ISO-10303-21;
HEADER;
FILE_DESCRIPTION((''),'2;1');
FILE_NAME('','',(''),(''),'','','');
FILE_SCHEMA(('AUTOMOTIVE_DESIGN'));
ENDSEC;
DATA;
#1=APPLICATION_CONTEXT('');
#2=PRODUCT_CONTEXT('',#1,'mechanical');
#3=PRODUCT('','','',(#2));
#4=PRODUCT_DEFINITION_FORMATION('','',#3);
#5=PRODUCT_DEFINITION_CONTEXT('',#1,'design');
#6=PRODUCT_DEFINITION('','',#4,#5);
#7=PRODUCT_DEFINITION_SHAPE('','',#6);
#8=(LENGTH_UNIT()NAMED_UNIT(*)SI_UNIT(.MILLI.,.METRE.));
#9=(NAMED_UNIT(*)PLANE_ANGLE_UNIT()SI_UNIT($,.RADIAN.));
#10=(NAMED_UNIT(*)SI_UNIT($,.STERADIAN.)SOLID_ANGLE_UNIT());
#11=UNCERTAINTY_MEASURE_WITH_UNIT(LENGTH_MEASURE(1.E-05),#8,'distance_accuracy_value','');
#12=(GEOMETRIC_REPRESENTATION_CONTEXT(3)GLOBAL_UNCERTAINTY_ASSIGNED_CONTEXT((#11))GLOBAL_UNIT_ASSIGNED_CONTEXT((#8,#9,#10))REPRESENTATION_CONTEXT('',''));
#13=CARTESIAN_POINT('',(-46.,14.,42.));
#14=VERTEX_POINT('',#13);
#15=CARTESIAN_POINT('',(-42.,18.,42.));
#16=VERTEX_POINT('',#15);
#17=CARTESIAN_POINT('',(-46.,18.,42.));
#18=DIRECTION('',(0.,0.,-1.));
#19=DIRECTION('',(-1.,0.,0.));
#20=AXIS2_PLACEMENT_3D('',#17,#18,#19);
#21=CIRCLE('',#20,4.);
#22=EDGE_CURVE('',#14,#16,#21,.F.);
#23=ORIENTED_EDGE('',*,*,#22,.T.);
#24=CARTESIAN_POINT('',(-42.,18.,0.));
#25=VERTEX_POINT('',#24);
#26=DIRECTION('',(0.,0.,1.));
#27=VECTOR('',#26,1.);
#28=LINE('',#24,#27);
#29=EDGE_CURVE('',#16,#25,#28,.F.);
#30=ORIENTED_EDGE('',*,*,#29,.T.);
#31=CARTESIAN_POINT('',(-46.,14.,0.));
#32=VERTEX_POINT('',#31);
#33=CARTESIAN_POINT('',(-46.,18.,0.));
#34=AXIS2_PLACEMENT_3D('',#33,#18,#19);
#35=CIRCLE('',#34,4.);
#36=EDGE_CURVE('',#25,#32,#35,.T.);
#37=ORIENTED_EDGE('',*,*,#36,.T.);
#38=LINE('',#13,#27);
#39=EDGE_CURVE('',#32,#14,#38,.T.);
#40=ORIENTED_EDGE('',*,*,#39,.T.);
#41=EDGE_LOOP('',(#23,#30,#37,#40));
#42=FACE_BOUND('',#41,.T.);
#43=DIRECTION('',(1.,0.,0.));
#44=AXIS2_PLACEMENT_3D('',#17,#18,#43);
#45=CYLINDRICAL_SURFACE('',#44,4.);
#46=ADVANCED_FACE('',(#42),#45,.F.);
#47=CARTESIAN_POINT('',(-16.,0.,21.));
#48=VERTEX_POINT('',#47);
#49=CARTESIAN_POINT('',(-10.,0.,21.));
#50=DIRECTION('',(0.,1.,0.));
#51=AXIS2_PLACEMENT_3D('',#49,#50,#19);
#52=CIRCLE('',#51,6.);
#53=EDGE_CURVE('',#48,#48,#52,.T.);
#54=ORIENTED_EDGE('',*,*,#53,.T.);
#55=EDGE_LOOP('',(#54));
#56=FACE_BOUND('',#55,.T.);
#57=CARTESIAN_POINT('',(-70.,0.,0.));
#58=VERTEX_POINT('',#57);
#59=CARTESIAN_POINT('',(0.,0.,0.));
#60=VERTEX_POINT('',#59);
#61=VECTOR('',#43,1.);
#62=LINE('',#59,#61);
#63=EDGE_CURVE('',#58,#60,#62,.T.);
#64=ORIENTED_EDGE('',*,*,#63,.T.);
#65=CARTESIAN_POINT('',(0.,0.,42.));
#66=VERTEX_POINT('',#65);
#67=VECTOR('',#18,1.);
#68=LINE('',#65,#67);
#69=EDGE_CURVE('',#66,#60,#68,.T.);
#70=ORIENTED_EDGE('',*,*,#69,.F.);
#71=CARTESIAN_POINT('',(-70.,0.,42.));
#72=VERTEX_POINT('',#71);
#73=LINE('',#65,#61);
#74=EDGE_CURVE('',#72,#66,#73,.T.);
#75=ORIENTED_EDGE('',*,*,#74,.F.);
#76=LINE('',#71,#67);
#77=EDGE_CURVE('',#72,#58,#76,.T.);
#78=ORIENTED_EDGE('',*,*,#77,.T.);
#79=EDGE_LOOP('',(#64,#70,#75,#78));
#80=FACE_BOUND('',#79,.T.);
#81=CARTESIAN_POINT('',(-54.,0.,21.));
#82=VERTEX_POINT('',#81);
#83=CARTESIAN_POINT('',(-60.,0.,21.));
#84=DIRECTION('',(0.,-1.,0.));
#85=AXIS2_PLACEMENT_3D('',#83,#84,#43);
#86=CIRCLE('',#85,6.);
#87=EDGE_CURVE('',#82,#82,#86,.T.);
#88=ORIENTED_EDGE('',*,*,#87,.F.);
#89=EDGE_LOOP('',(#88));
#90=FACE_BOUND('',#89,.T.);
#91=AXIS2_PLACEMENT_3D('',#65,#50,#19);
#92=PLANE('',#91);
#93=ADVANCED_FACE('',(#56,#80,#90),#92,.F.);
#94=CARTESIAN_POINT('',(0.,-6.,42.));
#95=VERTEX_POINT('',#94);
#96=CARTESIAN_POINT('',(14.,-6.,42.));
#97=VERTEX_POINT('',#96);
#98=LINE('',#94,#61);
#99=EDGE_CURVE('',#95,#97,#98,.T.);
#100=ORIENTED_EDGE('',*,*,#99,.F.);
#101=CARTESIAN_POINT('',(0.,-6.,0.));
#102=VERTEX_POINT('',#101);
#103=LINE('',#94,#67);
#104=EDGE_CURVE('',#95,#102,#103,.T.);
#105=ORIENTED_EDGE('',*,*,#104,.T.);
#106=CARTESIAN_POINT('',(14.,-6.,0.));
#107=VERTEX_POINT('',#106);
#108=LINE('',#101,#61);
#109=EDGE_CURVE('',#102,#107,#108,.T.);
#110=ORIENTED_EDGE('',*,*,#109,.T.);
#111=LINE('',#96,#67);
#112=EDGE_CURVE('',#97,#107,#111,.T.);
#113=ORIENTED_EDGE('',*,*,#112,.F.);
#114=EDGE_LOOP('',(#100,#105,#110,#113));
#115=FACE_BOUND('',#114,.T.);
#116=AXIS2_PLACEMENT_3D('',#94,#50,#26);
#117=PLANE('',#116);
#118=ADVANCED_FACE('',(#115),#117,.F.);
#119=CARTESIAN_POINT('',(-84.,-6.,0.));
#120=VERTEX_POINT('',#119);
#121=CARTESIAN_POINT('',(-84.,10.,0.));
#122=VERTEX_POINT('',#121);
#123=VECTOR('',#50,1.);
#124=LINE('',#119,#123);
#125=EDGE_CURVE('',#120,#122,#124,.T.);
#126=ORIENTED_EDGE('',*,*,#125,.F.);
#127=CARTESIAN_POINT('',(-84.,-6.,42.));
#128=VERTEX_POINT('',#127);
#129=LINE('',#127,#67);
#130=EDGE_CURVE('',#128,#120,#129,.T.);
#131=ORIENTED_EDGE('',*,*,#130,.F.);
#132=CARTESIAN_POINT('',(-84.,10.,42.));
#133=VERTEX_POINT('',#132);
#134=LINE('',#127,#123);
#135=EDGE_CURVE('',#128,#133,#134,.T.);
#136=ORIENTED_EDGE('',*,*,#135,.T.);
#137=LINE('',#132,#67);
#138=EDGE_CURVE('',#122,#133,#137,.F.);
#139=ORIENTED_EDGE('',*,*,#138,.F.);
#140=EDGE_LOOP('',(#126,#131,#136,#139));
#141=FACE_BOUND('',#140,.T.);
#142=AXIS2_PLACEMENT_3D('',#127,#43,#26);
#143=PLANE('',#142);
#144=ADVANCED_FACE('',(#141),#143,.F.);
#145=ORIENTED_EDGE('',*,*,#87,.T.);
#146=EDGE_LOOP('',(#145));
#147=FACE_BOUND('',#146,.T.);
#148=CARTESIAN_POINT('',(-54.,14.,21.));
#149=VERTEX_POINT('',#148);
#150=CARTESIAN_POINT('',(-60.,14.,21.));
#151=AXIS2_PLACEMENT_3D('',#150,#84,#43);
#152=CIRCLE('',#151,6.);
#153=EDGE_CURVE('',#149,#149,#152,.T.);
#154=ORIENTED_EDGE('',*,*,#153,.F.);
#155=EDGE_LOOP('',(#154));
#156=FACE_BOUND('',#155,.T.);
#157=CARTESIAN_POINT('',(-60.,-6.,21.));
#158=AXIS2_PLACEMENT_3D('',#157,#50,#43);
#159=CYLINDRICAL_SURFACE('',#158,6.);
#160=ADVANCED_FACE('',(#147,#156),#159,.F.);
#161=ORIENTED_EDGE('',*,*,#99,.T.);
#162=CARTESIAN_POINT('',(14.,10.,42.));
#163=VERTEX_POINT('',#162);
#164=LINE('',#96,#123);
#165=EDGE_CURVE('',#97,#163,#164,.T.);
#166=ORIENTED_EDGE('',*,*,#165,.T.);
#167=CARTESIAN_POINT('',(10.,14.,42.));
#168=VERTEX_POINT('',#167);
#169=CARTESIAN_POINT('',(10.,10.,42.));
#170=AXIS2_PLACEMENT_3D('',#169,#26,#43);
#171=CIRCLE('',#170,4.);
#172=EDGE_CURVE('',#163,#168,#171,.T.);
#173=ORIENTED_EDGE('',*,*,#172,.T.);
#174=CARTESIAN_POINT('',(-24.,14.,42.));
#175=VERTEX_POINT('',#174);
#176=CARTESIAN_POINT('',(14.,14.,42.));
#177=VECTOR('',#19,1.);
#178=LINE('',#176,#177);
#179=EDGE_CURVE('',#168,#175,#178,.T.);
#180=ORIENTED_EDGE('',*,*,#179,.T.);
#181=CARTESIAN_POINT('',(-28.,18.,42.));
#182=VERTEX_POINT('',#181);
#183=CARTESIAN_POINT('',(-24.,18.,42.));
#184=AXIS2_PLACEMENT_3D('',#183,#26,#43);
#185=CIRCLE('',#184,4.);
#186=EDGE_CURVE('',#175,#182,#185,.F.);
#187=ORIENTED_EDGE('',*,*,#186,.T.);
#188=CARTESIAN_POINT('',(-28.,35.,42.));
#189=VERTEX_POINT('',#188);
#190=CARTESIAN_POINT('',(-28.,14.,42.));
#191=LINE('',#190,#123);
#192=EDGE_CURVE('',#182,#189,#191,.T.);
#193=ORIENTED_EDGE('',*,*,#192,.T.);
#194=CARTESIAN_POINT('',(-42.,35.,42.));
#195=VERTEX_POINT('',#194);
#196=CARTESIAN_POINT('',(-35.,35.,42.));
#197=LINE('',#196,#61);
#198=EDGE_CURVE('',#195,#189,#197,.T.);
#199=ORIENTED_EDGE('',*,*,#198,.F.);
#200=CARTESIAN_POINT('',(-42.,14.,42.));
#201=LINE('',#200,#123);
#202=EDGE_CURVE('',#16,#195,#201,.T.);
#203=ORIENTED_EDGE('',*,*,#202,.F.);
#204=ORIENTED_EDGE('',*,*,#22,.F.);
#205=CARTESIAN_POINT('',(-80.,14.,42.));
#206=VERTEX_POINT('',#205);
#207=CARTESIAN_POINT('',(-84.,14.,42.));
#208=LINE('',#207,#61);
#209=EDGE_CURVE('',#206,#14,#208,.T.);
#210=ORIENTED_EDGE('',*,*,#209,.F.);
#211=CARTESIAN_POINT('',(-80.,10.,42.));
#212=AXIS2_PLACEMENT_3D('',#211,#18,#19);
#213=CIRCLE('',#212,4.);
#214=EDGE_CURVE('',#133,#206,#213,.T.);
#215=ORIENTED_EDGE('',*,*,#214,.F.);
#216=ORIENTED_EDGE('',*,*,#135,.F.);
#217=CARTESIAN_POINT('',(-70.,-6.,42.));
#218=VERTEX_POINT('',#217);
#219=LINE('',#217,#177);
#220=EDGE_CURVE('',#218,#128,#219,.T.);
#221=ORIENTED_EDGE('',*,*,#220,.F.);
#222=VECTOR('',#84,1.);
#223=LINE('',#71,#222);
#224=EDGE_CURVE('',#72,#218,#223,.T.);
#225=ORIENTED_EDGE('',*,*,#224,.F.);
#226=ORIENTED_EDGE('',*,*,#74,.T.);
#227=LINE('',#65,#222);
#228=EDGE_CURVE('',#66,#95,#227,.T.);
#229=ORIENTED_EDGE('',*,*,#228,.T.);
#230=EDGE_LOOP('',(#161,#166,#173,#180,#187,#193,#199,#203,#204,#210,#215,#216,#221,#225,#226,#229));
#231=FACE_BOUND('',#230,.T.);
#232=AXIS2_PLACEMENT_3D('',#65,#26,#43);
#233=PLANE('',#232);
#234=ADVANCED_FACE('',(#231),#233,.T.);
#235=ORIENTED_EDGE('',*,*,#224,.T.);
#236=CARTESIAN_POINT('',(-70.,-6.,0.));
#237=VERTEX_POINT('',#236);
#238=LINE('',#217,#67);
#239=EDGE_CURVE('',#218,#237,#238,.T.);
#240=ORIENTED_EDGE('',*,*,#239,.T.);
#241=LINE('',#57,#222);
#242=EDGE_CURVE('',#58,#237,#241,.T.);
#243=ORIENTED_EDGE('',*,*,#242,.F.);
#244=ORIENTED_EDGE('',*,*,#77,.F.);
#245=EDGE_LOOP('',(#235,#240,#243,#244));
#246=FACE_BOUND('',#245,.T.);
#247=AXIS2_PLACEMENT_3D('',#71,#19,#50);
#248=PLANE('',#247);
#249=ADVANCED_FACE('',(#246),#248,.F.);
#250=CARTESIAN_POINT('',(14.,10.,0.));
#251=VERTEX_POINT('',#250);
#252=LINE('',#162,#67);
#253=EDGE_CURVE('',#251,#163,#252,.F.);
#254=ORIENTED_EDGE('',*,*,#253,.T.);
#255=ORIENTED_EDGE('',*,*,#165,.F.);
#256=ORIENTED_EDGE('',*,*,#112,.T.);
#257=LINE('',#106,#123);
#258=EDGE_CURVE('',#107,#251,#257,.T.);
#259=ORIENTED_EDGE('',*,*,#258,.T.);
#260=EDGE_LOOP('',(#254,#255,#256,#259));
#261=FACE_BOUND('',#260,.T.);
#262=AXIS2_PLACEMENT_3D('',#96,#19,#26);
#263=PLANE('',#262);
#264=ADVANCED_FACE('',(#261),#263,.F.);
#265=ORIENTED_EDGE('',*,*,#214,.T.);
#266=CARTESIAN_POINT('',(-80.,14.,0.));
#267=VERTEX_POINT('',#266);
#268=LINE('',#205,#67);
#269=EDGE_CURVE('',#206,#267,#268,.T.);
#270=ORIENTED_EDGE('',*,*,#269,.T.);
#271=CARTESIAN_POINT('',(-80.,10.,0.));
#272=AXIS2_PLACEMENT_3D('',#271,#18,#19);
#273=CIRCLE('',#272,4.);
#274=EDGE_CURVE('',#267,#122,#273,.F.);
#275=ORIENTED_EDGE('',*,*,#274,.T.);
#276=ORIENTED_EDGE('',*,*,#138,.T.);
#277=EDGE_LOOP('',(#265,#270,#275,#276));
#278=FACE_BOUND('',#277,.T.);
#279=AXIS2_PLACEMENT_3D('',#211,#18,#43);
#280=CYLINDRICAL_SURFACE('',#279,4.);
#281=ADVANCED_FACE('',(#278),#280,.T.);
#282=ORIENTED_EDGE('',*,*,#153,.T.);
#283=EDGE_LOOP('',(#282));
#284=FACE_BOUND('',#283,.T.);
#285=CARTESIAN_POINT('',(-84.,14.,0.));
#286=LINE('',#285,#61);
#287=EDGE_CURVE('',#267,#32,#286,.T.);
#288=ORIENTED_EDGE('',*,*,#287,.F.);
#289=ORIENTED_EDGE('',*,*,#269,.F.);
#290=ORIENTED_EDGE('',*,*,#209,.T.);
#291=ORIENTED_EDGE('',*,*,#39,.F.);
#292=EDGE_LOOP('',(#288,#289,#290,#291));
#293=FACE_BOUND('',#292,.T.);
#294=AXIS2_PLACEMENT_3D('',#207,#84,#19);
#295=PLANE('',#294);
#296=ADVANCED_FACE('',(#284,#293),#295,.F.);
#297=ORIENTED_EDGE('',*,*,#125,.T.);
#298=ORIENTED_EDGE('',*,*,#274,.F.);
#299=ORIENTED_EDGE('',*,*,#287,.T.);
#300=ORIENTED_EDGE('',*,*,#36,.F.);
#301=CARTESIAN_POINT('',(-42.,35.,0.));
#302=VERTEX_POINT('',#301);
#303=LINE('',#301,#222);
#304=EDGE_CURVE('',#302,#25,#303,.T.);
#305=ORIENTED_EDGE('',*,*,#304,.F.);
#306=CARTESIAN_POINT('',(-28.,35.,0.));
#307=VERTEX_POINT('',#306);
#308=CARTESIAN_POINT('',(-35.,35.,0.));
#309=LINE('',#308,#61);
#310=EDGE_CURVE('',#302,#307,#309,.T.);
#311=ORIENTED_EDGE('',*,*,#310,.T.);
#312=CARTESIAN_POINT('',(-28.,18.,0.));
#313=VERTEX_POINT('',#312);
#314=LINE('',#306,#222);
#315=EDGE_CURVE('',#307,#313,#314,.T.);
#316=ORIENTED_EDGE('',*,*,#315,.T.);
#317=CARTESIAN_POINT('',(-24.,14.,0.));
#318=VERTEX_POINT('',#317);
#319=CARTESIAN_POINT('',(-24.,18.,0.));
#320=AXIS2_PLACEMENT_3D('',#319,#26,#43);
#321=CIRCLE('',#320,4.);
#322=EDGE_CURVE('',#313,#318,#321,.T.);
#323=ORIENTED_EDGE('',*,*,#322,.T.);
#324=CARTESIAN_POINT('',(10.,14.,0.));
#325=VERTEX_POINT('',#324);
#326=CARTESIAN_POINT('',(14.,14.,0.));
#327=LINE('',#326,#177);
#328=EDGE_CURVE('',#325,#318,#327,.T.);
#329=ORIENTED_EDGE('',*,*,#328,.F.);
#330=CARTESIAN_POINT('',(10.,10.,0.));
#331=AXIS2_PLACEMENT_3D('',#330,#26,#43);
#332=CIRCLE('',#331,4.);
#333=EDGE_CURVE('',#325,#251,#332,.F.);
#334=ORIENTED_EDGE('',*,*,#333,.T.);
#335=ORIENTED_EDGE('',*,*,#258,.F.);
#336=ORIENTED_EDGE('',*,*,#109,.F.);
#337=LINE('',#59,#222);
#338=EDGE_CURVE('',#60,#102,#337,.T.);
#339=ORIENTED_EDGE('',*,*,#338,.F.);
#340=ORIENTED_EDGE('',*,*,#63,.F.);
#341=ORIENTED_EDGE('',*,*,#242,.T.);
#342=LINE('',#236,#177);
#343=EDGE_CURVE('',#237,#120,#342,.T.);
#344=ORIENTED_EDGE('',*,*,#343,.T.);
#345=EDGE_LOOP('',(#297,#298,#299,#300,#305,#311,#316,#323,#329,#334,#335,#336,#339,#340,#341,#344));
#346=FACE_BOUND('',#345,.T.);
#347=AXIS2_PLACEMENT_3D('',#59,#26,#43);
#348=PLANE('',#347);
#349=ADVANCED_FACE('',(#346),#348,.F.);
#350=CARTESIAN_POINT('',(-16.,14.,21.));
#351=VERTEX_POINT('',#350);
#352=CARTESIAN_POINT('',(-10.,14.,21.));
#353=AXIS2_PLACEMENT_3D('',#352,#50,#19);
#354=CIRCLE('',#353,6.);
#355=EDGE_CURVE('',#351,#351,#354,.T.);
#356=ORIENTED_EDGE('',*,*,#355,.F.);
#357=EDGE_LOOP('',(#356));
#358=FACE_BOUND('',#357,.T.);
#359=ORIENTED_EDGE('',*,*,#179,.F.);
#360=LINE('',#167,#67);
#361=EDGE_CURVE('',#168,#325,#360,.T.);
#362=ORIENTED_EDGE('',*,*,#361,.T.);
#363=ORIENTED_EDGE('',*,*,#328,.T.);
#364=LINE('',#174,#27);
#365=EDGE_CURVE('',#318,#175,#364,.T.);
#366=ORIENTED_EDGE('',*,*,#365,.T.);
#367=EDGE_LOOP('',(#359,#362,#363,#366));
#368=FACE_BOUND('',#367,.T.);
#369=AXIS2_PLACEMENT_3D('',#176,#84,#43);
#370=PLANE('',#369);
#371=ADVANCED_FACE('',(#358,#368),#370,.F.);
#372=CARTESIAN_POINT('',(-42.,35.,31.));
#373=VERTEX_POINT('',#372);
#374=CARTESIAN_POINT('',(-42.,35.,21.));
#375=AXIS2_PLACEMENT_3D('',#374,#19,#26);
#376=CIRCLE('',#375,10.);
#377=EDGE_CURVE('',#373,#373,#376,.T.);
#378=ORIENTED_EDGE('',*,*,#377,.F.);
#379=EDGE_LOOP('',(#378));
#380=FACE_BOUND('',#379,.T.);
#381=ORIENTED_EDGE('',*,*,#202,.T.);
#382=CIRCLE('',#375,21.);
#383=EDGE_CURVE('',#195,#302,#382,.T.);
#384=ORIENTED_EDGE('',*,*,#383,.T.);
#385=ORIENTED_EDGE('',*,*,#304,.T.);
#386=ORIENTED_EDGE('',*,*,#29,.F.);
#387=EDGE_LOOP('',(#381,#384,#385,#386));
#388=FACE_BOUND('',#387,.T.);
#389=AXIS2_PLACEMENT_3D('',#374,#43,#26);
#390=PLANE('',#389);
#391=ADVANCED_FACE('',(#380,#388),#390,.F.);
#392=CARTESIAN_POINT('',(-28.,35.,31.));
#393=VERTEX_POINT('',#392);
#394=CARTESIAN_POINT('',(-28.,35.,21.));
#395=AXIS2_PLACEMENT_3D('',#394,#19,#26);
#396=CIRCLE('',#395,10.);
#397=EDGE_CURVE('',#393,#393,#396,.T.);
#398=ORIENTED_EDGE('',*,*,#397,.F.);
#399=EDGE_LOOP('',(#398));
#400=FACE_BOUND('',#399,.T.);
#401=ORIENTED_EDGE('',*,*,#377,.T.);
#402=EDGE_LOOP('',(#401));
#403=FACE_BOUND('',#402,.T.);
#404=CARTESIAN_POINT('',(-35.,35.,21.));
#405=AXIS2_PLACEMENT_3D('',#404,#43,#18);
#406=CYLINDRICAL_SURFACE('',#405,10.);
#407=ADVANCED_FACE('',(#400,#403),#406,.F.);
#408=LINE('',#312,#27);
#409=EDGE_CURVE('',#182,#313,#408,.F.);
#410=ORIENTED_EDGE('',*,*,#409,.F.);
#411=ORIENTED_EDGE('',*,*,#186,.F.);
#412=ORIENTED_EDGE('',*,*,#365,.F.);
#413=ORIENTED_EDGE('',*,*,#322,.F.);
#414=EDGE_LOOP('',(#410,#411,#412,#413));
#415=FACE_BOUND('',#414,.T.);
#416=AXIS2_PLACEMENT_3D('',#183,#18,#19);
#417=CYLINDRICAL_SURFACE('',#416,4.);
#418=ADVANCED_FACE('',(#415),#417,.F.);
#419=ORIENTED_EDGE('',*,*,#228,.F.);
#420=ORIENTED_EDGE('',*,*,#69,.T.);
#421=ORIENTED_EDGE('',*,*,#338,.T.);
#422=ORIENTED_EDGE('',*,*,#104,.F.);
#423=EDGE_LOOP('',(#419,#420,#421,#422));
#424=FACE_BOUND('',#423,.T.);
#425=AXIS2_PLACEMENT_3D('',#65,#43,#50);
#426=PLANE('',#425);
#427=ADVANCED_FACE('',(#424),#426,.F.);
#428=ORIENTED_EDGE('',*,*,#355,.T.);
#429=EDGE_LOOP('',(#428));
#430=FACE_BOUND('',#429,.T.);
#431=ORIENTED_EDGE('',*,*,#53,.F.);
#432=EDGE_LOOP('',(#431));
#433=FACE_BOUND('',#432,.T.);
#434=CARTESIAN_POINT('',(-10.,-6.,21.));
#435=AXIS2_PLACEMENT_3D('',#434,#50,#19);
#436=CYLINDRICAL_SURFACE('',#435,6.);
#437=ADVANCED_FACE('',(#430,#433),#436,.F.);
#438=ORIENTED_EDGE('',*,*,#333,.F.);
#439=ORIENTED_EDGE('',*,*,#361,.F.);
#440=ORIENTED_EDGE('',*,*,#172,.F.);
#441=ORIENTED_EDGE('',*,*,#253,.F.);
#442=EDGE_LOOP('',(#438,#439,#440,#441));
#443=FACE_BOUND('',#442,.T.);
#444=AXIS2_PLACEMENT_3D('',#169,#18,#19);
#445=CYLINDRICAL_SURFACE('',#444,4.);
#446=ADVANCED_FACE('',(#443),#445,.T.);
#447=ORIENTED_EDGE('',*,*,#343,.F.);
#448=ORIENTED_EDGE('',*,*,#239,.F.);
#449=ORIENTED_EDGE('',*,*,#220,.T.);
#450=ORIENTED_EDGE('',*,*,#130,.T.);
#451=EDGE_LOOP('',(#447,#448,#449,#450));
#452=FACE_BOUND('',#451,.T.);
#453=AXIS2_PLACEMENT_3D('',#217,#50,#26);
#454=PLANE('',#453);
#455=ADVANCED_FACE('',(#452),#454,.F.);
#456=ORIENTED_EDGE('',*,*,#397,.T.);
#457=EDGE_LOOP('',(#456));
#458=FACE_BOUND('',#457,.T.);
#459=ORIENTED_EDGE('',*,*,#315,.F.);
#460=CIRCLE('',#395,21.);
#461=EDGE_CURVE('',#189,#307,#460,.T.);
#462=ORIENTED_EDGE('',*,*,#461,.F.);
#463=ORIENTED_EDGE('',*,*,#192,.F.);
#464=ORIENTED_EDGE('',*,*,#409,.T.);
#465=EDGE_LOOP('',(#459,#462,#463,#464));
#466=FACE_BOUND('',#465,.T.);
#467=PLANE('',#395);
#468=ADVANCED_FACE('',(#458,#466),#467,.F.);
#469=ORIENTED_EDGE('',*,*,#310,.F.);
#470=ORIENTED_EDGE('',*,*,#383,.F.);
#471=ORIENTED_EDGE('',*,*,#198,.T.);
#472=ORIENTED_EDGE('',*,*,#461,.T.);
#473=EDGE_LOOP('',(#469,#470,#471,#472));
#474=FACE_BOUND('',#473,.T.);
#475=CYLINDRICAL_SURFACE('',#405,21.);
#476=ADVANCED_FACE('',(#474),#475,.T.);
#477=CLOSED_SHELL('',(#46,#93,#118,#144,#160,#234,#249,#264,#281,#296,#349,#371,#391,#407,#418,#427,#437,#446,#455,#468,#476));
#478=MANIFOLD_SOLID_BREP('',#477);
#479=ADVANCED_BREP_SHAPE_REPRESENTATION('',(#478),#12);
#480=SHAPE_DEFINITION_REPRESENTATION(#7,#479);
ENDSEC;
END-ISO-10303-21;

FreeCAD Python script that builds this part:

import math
import FreeCAD as App
import Part
import Sketcher
from FreeCAD import Vector
Q = App.Units.Quantity


def edges_at(feature, points):
    """Names of the edges that pass closest to the given points."""
    edges = feature.Shape.Edges
    near = lambda p: min(range(len(edges)), key=lambda i: edges[i].distToShape(Part.Vertex(*p))[0])
    return sorted({f"Edge{near(p) + 1}" for p in points})


def add_polygon(sketch, points):
    """Adds a closed chain of lines whose ends are joined by coincident constraints."""
    first, n = sketch.GeometryCount, len(points)
    for a, b in zip(points, points[1:] + points[:1]):
        sketch.addGeometry(Part.LineSegment(App.Vector(*a, 0), App.Vector(*b, 0)), False)
    for i in range(n):
        sketch.addConstraint(Sketcher.Constraint("Coincident", first + i, 2, first + (i + 1) % n, 1))

doc = App.newDocument("Part")
body = doc.addObject("PartDesign::Body", "Body")

sketch1 = body.newObject("Sketcher::SketchObject", "Sketch")
sketch1.AttachmentSupport = (doc.getObject("XY_Plane"), [""])
sketch1.MapMode = "FlatFace"
add_polygon(sketch1, [(0, 0), (0, -6), (14, -6), (14, 14), (-35, 14), (-35, 0)])
sketch1.addConstraint(Sketcher.Constraint("Vertical", 0))
sketch1.addConstraint(Sketcher.Constraint("Horizontal", 1))
sketch1.addConstraint(Sketcher.Constraint("Vertical", 2))
sketch1.addConstraint(Sketcher.Constraint("Horizontal", 3))
sketch1.addConstraint(Sketcher.Constraint("Vertical", 4))
sketch1.addConstraint(Sketcher.Constraint("Horizontal", 5))
sketch1.addConstraint(Sketcher.Constraint("Coincident", 5, 2, -1, 1))
sketch1.addConstraint(Sketcher.Constraint("Equal", 1, 4))
sketch1.addConstraint(Sketcher.Constraint("DistanceX", 1, 1, 1, 2, Q("14 mm")))
sketch1.addConstraint(Sketcher.Constraint("DistanceX", 3, 2, 3, 1, Q("49 mm")))
sketch1.addConstraint(Sketcher.Constraint("DistanceY", 0, 2, 0, 1, Q("6 mm")))
pad1 = body.newObject("PartDesign::Pad", "Pad")
pad1.Profile = sketch1
pad1.Length = 42

sketch2 = body.newObject("Sketcher::SketchObject", "Sketch001")
sketch2.AttachmentSupport = (doc.getObject("YZ_Plane"), [""])
sketch2.MapMode = "FlatFace"
sketch2.AttachmentOffset = App.Placement(Vector(0, 0, -28), App.Rotation())
sketch2.addGeometry(Part.LineSegment(Vector(14, 0, 0), Vector(14, 42, 0)), False)
sketch2.addGeometry(Part.LineSegment(Vector(14, 42, 0), Vector(35, 42, 0)), False)
sketch2.addGeometry(Part.ArcOfCircle(Part.Circle(Vector(35, 21, 0), Vector(0, 0, 1), 21), math.radians(-90), math.radians(90)), False)
sketch2.addGeometry(Part.LineSegment(Vector(35, 0, 0), Vector(14, 0, 0)), False)
sketch2.addGeometry(Part.Circle(Vector(35, 21, 0), Vector(0, 0, 1), 10), False)
sketch2.addConstraint(Sketcher.Constraint("Coincident", 0, 2, 1, 1))
sketch2.addConstraint(Sketcher.Constraint("Tangent", 1, 2, 2, 2))
sketch2.addConstraint(Sketcher.Constraint("Tangent", 2, 1, 3, 1))
sketch2.addConstraint(Sketcher.Constraint("Coincident", 3, 2, 0, 1))
sketch2.addConstraint(Sketcher.Constraint("Vertical", 0))
sketch2.addConstraint(Sketcher.Constraint("Horizontal", 1))
sketch2.addConstraint(Sketcher.Constraint("Horizontal", 3))
sketch2.addConstraint(Sketcher.Constraint("Coincident", 4, 3, 2, 3))
sketch2.addConstraint(Sketcher.Constraint("PointOnObject", 2, 1, -1))
sketch2.addConstraint(Sketcher.Constraint("Diameter", 4, Q("20 mm")))
sketch2.addConstraint(Sketcher.Constraint("Radius", 2, Q("21 mm")))
sketch2.addConstraint(Sketcher.Constraint("DistanceX", 1, 1, 1, 2, Q("21 mm")))
sketch2.addConstraint(Sketcher.Constraint("DistanceX", -1, 1, 2, 3, Q("35 mm")))
pad2 = body.newObject("PartDesign::Pad", "Pad001")
pad2.Profile = sketch2
pad2.Length = 7
pad2.Reversed = True

sketch3 = body.newObject("Sketcher::SketchObject", "Sketch002")
sketch3.AttachmentSupport = (doc.getObject("XZ_Plane"), [""])
sketch3.MapMode = "FlatFace"
sketch3.AttachmentOffset = App.Placement(Vector(0, 0, -14), App.Rotation())
sketch3.addGeometry(Part.Circle(Vector(-10, 21, 0), Vector(0, 0, 1), 6), False)
sketch3.addConstraint(Sketcher.Constraint("Diameter", 0, Q("12 mm")))
sketch3.addConstraint(Sketcher.Constraint("DistanceX", 0, 3, -1, 1, Q("10 mm")))
sketch3.addConstraint(Sketcher.Constraint("DistanceY", -1, 1, 0, 3, Q("21 mm")))
pocket1 = body.newObject("PartDesign::Pocket", "Pocket")
pocket1.Profile = sketch3
pocket1.Type = "ThroughAll"
pocket1.Reversed = True
doc.recompute()

fillet = body.newObject("PartDesign::Fillet", "Fillet")
fillet.Base = (pocket1, edges_at(pocket1, [(14, 14, 21), (-28, 14, 21)]))
fillet.Radius = 4
body2 = doc.addObject("PartDesign::Body", "Body001")
doc.recompute()

body2.BaseFeature = body
doc.recompute()

mirroring = doc.addObject("Part::Mirroring", "Mirroring")
mirroring.Source = body
mirroring.Base = Vector(-35, 14, 42)
mirroring.Normal = Vector(1, 0, 0)
body3 = doc.addObject("PartDesign::Body", "Body002")
body3.BaseFeature = mirroring
boolean = body2.newObject("PartDesign::Boolean", "Boolean")
boolean.Type = "Fuse"
boolean.addObjects([body3])
doc.recompute()
mirroring.Visibility = False

doc.recompute()
